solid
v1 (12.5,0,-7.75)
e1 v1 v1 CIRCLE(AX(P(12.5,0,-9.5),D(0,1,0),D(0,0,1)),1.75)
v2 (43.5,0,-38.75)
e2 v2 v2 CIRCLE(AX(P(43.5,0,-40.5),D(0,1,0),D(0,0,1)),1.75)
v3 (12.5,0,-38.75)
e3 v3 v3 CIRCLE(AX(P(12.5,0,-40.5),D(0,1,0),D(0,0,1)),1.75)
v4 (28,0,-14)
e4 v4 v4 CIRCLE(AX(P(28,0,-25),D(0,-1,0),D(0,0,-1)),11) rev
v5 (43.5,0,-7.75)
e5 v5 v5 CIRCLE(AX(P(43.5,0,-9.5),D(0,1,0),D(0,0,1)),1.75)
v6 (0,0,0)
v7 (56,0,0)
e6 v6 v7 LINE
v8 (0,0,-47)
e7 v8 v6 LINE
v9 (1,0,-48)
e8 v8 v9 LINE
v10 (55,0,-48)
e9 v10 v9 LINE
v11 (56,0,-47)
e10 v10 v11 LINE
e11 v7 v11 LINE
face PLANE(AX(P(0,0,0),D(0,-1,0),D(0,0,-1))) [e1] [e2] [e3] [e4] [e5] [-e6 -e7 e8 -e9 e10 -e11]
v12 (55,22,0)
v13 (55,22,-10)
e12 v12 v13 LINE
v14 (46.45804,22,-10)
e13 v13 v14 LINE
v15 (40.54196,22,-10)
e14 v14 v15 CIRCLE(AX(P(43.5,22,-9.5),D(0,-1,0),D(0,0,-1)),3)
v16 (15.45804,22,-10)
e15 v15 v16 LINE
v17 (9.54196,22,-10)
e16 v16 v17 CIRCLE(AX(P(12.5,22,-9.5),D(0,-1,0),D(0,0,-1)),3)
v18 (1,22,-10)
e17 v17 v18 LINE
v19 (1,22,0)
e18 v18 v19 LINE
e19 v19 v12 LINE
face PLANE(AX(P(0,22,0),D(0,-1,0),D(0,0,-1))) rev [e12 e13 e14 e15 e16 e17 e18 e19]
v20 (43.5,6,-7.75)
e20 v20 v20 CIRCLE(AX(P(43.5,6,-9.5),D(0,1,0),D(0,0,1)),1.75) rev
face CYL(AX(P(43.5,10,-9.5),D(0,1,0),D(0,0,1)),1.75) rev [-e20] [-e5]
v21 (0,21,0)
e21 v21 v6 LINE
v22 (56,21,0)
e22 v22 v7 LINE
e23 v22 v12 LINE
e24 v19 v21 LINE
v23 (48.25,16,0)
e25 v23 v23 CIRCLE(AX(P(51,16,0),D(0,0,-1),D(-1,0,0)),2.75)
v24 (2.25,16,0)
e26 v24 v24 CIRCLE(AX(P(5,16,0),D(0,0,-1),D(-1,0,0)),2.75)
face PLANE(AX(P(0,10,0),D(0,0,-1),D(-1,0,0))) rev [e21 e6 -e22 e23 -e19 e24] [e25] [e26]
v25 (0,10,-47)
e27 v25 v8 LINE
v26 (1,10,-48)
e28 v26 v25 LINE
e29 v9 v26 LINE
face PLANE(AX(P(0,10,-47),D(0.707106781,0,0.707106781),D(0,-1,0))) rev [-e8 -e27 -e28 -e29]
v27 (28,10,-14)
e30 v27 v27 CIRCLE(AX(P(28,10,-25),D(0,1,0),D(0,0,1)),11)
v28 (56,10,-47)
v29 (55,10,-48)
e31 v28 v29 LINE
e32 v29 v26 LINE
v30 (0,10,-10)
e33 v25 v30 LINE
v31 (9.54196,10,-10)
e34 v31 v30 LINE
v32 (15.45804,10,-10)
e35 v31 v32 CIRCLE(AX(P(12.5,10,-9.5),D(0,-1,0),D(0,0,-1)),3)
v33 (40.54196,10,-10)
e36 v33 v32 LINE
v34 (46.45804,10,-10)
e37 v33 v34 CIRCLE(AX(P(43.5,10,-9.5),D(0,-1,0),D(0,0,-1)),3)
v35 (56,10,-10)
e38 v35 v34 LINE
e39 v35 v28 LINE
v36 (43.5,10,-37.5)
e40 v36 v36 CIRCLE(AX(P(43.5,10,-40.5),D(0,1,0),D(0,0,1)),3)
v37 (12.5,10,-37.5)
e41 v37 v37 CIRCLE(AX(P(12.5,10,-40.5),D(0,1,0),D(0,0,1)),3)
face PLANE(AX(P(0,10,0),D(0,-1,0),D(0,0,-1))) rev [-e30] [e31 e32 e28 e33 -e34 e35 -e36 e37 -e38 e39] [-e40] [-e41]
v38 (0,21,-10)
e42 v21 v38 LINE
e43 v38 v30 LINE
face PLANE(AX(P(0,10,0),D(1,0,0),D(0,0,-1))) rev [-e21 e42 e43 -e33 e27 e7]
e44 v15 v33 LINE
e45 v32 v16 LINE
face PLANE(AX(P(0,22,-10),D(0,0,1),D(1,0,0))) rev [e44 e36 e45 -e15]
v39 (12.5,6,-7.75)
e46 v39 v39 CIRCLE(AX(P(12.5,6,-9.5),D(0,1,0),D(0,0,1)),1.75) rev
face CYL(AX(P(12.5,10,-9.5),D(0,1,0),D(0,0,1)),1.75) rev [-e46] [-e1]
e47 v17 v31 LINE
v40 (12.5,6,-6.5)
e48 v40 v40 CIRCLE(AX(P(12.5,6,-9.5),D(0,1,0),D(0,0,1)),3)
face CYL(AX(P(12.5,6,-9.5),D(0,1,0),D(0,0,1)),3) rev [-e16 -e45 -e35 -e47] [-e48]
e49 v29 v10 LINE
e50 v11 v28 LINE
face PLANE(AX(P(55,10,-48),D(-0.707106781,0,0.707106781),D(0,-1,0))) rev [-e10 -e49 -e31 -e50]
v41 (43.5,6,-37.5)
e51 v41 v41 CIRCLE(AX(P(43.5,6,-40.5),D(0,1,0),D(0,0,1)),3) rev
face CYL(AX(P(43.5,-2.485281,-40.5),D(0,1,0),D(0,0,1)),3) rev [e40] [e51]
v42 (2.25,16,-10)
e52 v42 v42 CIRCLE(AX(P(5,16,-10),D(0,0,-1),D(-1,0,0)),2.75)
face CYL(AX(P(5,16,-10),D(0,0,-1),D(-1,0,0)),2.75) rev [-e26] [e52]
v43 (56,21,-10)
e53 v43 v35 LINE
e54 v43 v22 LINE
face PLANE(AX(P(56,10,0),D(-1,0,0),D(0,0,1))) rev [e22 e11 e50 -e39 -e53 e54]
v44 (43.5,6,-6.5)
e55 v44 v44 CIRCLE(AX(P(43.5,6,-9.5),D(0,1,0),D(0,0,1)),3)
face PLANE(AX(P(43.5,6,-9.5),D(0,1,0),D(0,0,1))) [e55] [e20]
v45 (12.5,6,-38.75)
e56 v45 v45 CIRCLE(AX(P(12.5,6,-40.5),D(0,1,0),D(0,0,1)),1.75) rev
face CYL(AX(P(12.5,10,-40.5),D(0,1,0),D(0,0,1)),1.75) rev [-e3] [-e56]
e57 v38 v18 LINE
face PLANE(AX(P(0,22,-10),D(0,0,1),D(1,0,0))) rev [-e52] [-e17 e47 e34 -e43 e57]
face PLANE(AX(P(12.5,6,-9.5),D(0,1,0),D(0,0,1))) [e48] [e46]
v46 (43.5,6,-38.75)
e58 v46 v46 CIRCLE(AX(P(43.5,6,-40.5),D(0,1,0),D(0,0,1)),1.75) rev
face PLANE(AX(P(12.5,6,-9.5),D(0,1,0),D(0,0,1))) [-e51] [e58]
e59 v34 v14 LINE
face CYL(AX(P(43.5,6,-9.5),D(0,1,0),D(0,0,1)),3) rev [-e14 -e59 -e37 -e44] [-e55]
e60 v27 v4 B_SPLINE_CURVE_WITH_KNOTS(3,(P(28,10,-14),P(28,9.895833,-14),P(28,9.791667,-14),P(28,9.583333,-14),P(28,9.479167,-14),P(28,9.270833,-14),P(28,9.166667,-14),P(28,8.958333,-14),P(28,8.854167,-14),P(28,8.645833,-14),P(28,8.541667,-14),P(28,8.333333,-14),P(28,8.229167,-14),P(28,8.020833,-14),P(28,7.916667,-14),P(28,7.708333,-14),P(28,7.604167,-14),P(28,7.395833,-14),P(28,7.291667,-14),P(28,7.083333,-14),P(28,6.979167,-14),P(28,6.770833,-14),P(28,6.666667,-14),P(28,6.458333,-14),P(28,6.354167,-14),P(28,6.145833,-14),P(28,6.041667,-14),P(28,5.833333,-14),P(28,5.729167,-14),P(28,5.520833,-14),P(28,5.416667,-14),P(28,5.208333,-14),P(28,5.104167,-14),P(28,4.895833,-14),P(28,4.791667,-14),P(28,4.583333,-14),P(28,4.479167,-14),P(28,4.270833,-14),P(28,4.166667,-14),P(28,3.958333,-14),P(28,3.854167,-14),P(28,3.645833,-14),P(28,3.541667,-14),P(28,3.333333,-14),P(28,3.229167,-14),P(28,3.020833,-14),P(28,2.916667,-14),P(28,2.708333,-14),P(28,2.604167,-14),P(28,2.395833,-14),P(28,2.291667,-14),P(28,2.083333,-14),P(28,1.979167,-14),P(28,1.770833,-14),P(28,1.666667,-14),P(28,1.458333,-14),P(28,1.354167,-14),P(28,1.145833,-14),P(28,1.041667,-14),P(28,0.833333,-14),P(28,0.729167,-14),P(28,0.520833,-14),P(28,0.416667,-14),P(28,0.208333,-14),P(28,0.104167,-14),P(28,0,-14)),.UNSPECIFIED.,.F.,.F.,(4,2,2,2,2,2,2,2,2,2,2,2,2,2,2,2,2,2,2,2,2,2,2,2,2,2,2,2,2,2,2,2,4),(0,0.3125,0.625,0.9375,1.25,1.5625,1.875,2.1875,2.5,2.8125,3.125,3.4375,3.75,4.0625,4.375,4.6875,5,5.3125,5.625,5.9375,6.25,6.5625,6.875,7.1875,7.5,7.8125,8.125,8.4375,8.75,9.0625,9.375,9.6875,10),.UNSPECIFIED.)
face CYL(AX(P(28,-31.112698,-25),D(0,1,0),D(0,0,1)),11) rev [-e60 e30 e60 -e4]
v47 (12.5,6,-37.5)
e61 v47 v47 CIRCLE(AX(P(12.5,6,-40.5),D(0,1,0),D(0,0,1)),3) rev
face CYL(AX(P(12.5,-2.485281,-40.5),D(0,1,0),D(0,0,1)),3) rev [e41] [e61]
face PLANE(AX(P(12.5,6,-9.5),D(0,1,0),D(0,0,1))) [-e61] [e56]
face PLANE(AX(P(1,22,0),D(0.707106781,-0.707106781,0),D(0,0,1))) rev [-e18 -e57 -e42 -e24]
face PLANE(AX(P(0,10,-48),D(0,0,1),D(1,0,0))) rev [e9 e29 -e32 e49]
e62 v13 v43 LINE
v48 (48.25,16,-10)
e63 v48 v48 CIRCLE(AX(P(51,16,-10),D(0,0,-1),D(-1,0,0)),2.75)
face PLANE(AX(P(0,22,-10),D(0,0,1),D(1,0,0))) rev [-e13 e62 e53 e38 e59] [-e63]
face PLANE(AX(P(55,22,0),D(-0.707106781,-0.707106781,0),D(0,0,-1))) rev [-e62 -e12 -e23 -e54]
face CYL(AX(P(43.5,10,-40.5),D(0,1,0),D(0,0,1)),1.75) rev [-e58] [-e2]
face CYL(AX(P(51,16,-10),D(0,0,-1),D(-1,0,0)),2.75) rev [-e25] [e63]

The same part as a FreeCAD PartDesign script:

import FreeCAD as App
import Part
import Sketcher
from FreeCAD import Vector
Q = App.Units.Quantity


def edges_at(feature, points):
    """Names of the edges that pass closest to the given points."""
    edges = feature.Shape.Edges
    near = lambda p: min(range(len(edges)), key=lambda i: edges[i].distToShape(Part.Vertex(*p))[0])
    return sorted({f"Edge{near(p) + 1}" for p in points})

doc = App.newDocument("Part")
body = doc.addObject("PartDesign::Body", "Body")

# Sketch on XZ plane
sketch1 = body.newObject("Sketcher::SketchObject", "Sketch")
sketch1.AttachmentSupport = (doc.getObject("XZ_Plane"), [""])
sketch1.MapMode = "FlatFace"
sketch1.addGeometry([
    Part.LineSegment(Vector(0, -48, 0), Vector(0, 0, 0)),
    Part.LineSegment(Vector(0, 0, 0), Vector(56, 0, 0)),
    Part.LineSegment(Vector(56, 0, 0), Vector(56, -48, 0)),
    Part.LineSegment(Vector(56, -48, 0), Vector(0, -48, 0)),
], False)
sketch1.addConstraint([
    Sketcher.Constraint("Coincident", 0, 2, 1, 1),
    Sketcher.Constraint("Coincident", 1, 2, 2, 1),
    Sketcher.Constraint("Coincident", 2, 2, 3, 1),
    Sketcher.Constraint("Coincident", 3, 2, 0, 1),
    Sketcher.Constraint("Vertical", 0),
    Sketcher.Constraint("Horizontal", 1),
    Sketcher.Constraint("Vertical", 2),
    Sketcher.Constraint("Horizontal", 3),
    Sketcher.Constraint("Coincident", 0, 2, -1, 1),
    Sketcher.Constraint("DistanceX", 1, 1, 1, 2, Q("56 mm")),
    Sketcher.Constraint("DistanceY", 0, 1, 0, 2, Q("48 mm")),
])
pad1 = body.newObject("PartDesign::Pad", "Pad")
pad1.Profile = sketch1
pad1.Length = 10
pad1.Reversed = True

# Sketch on XZ plane
sketch2 = body.newObject("Sketcher::SketchObject", "Sketch001")
sketch2.AttachmentSupport = (doc.getObject("XZ_Plane"), [""])
sketch2.MapMode = "FlatFace"
sketch2.AttachmentOffset = App.Placement(Vector(0, 0, -10), App.Rotation())
sketch2.addGeometry(Part.Circle(Vector(28, -25, 0), Vector(0, 0, 1), 11), False)
sketch2.addConstraint([
    Sketcher.Constraint("Diameter", 0, Q("22 mm")),
    Sketcher.Constraint("DistanceX", -1, 1, 0, 3, Q("28 mm")),
    Sketcher.Constraint("DistanceY", 0, 3, -1, 1, Q("25 mm")),
])
pocket1 = body.newObject("PartDesign::Pocket", "Pocket")
pocket1.Profile = sketch2
pocket1.Length = 10
pocket1.Reversed = True

# Sketch on XZ plane
sketch3 = body.newObject("Sketcher::SketchObject", "Sketch002")
sketch3.AttachmentSupport = (doc.getObject("XZ_Plane"), [""])
sketch3.MapMode = "FlatFace"
sketch3.AttachmentOffset = App.Placement(Vector(0, 0, -10), App.Rotation())
sketch3.addGeometry([
    Part.Circle(Vector(12.5, -40.5, 0), Vector(0, 0, 1), 1.75),
    Part.Circle(Vector(43.5, -40.5, 0), Vector(0, 0, 1), 1.75),
    Part.Circle(Vector(43.5, -9.5, 0), Vector(0, 0, 1), 1.75),
    Part.Circle(Vector(12.5, -9.5, 0), Vector(0, 0, 1), 1.75),
], False)
sketch3.addConstraint([
    Sketcher.Constraint("Equal", 0, 1),
    Sketcher.Constraint("Equal", 1, 2),
    Sketcher.Constraint("Equal", 2, 3),
    Sketcher.Constraint("Horizontal", 0, 3, 1, 3),
    Sketcher.Constraint("Horizontal", 2, 3, 3, 3),
    Sketcher.Constraint("Vertical", 1, 3, 2, 3),
    Sketcher.Constraint("Vertical", 0, 3, 3, 3),
    Sketcher.Constraint("Diameter", 0, Q("3.5 mm")),
    Sketcher.Constraint("DistanceX", 0, 3, 1, 3, Q("31 mm")),
    Sketcher.Constraint("DistanceY", 1, 3, 2, 3, Q("31 mm")),
    Sketcher.Constraint("DistanceX", -1, 1, 0, 3, Q("12.5 mm")),
    Sketcher.Constraint("DistanceY", 0, 3, -1, 1, Q("40.5 mm")),
])
doc.recompute()
hole = body.newObject("PartDesign::Hole", "Hole")
hole.Profile = sketch3
hole.ThreadType = "None"
hole.Diameter = 3.5
hole.DepthType = "ThroughAll"
hole.Reversed = True

# Sketch on XZ plane
sketch4 = body.newObject("Sketcher::SketchObject", "Sketch003")
sketch4.AttachmentSupport = (doc.getObject("XZ_Plane"), [""])
sketch4.MapMode = "FlatFace"
sketch4.AttachmentOffset = App.Placement(Vector(0, 0, -10), App.Rotation())
sketch4.addGeometry([
    Part.LineSegment(Vector(0, -10, 0), Vector(0, 0, 0)),
    Part.LineSegment(Vector(0, 0, 0), Vector(56, 0, 0)),
    Part.LineSegment(Vector(56, 0, 0), Vector(56, -10, 0)),
    Part.LineSegment(Vector(56, -10, 0), Vector(0, -10, 0)),
], False)
sketch4.addConstraint([
    Sketcher.Constraint("Coincident", 0, 2, 1, 1),
    Sketcher.Constraint("Coincident", 1, 2, 2, 1),
    Sketcher.Constraint("Coincident", 2, 2, 3, 1),
    Sketcher.Constraint("Coincident", 3, 2, 0, 1),
    Sketcher.Constraint("Vertical", 0),
    Sketcher.Constraint("Horizontal", 1),
    Sketcher.Constraint("Vertical", 2),
    Sketcher.Constraint("Horizontal", 3),
    Sketcher.Constraint("Coincident", 0, 2, -1, 1),
    Sketcher.Constraint("DistanceX", 1, 1, 1, 2, Q("56 mm")),
    Sketcher.Constraint("DistanceY", 0, 1, 0, 2, Q("10 mm")),
])
pad2 = body.newObject("PartDesign::Pad", "Pad001")
pad2.Profile = sketch4
pad2.Length = 12
pad2.Reversed = True

# Sketch on XY plane
sketch5 = body.newObject("Sketcher::SketchObject", "Sketch004")
sketch5.AttachmentSupport = (doc.getObject("XY_Plane"), [""])
sketch5.MapMode = "FlatFace"
sketch5.AttachmentOffset = App.Placement(Vector(0, 0, -10), App.Rotation())
sketch5.addGeometry([
    Part.Circle(Vector(51, 16, 0), Vector(0, 0, 1), 2.75),
    Part.Circle(Vector(5, 16, 0), Vector(0, 0, 1), 2.75),
], False)
sketch5.addConstraint([
    Sketcher.Constraint("Equal", 0, 1),
    Sketcher.Constraint("Horizontal", 0, 3, 1, 3),
    Sketcher.Constraint("Diameter", 0, Q("5.5 mm")),
    Sketcher.Constraint("DistanceX", -1, 1, 0, 3, Q("51 mm")),
    Sketcher.Constraint("DistanceY", -1, 1, 0, 3, Q("16 mm")),
    Sketcher.Constraint("DistanceX", -1, 1, 1, 3, Q("5 mm")),
])
doc.recompute()
hole2 = body.newObject("PartDesign::Hole", "Hole001")
hole2.Profile = sketch5
hole2.ThreadType = "None"
hole2.Diameter = 5.5
hole2.DepthType = "ThroughAll"
hole2.Reversed = True

# Sketch on XZ plane
sketch6 = body.newObject("Sketcher::SketchObject", "Sketch005")
sketch6.AttachmentSupport = (doc.getObject("XZ_Plane"), [""])
sketch6.MapMode = "FlatFace"
sketch6.AttachmentOffset = App.Placement(Vector(0, 0, -22), App.Rotation())
sketch6.addGeometry([
    Part.Circle(Vector(12.5, -9.5, 0), Vector(0, 0, 1), 3),
    Part.Circle(Vector(43.5, -9.5, 0), Vector(0, 0, 1), 3),
], False)
sketch6.addConstraint([
    Sketcher.Constraint("Equal", 0, 1),
    Sketcher.Constraint("Horizontal", 0, 3, 1, 3),
    Sketcher.Constraint("Diameter", 0, Q("6 mm")),
    Sketcher.Constraint("DistanceX", 0, 3, 1, 3, Q("31 mm")),
    Sketcher.Constraint("DistanceX", -1, 1, 0, 3, Q("12.5 mm")),
    Sketcher.Constraint("DistanceY", 0, 3, -1, 1, Q("9.5 mm")),
])
pocket2 = body.newObject("PartDesign::Pocket", "Pocket001")
pocket2.Profile = sketch6
pocket2.Length = 16
pocket2.Reversed = True

# Sketch on XZ plane
sketch7 = body.newObject("Sketcher::SketchObject", "Sketch006")
sketch7.AttachmentSupport = (doc.getObject("XZ_Plane"), [""])
sketch7.MapMode = "FlatFace"
sketch7.AttachmentOffset = App.Placement(Vector(0, 0, -10), App.Rotation())
sketch7.addGeometry([
    Part.Circle(Vector(12.5, -40.5, 0), Vector(0, 0, 1), 3),
    Part.Circle(Vector(43.5, -40.5, 0), Vector(0, 0, 1), 3),
], False)
sketch7.addConstraint([
    Sketcher.Constraint("Equal", 0, 1),
    Sketcher.Constraint("Horizontal", 0, 3, 1, 3),
    Sketcher.Constraint("Diameter", 0, Q("6 mm")),
    Sketcher.Constraint("DistanceX", 0, 3, 1, 3, Q("31 mm")),
    Sketcher.Constraint("DistanceX", -1, 1, 0, 3, Q("12.5 mm")),
    Sketcher.Constraint("DistanceY", 0, 3, -1, 1, Q("40.5 mm")),
])
pocket3 = body.newObject("PartDesign::Pocket", "Pocket002")
pocket3.Profile = sketch7
pocket3.Length = 4
pocket3.Reversed = True
doc.recompute()

chamfer = body.newObject("PartDesign::Chamfer", "Chamfer")
chamfer.Base = (pocket3, edges_at(pocket3, [(56, 5, -48), (0, 5, -48)]))
chamfer.Size = 1
doc.recompute()

chamfer2 = body.newObject("PartDesign::Chamfer", "Chamfer001")
chamfer2.Base = (chamfer, edges_at(chamfer, [(56, 22, -5), (0, 22, -5)]))
chamfer2.Size = 1

doc.recompute()
